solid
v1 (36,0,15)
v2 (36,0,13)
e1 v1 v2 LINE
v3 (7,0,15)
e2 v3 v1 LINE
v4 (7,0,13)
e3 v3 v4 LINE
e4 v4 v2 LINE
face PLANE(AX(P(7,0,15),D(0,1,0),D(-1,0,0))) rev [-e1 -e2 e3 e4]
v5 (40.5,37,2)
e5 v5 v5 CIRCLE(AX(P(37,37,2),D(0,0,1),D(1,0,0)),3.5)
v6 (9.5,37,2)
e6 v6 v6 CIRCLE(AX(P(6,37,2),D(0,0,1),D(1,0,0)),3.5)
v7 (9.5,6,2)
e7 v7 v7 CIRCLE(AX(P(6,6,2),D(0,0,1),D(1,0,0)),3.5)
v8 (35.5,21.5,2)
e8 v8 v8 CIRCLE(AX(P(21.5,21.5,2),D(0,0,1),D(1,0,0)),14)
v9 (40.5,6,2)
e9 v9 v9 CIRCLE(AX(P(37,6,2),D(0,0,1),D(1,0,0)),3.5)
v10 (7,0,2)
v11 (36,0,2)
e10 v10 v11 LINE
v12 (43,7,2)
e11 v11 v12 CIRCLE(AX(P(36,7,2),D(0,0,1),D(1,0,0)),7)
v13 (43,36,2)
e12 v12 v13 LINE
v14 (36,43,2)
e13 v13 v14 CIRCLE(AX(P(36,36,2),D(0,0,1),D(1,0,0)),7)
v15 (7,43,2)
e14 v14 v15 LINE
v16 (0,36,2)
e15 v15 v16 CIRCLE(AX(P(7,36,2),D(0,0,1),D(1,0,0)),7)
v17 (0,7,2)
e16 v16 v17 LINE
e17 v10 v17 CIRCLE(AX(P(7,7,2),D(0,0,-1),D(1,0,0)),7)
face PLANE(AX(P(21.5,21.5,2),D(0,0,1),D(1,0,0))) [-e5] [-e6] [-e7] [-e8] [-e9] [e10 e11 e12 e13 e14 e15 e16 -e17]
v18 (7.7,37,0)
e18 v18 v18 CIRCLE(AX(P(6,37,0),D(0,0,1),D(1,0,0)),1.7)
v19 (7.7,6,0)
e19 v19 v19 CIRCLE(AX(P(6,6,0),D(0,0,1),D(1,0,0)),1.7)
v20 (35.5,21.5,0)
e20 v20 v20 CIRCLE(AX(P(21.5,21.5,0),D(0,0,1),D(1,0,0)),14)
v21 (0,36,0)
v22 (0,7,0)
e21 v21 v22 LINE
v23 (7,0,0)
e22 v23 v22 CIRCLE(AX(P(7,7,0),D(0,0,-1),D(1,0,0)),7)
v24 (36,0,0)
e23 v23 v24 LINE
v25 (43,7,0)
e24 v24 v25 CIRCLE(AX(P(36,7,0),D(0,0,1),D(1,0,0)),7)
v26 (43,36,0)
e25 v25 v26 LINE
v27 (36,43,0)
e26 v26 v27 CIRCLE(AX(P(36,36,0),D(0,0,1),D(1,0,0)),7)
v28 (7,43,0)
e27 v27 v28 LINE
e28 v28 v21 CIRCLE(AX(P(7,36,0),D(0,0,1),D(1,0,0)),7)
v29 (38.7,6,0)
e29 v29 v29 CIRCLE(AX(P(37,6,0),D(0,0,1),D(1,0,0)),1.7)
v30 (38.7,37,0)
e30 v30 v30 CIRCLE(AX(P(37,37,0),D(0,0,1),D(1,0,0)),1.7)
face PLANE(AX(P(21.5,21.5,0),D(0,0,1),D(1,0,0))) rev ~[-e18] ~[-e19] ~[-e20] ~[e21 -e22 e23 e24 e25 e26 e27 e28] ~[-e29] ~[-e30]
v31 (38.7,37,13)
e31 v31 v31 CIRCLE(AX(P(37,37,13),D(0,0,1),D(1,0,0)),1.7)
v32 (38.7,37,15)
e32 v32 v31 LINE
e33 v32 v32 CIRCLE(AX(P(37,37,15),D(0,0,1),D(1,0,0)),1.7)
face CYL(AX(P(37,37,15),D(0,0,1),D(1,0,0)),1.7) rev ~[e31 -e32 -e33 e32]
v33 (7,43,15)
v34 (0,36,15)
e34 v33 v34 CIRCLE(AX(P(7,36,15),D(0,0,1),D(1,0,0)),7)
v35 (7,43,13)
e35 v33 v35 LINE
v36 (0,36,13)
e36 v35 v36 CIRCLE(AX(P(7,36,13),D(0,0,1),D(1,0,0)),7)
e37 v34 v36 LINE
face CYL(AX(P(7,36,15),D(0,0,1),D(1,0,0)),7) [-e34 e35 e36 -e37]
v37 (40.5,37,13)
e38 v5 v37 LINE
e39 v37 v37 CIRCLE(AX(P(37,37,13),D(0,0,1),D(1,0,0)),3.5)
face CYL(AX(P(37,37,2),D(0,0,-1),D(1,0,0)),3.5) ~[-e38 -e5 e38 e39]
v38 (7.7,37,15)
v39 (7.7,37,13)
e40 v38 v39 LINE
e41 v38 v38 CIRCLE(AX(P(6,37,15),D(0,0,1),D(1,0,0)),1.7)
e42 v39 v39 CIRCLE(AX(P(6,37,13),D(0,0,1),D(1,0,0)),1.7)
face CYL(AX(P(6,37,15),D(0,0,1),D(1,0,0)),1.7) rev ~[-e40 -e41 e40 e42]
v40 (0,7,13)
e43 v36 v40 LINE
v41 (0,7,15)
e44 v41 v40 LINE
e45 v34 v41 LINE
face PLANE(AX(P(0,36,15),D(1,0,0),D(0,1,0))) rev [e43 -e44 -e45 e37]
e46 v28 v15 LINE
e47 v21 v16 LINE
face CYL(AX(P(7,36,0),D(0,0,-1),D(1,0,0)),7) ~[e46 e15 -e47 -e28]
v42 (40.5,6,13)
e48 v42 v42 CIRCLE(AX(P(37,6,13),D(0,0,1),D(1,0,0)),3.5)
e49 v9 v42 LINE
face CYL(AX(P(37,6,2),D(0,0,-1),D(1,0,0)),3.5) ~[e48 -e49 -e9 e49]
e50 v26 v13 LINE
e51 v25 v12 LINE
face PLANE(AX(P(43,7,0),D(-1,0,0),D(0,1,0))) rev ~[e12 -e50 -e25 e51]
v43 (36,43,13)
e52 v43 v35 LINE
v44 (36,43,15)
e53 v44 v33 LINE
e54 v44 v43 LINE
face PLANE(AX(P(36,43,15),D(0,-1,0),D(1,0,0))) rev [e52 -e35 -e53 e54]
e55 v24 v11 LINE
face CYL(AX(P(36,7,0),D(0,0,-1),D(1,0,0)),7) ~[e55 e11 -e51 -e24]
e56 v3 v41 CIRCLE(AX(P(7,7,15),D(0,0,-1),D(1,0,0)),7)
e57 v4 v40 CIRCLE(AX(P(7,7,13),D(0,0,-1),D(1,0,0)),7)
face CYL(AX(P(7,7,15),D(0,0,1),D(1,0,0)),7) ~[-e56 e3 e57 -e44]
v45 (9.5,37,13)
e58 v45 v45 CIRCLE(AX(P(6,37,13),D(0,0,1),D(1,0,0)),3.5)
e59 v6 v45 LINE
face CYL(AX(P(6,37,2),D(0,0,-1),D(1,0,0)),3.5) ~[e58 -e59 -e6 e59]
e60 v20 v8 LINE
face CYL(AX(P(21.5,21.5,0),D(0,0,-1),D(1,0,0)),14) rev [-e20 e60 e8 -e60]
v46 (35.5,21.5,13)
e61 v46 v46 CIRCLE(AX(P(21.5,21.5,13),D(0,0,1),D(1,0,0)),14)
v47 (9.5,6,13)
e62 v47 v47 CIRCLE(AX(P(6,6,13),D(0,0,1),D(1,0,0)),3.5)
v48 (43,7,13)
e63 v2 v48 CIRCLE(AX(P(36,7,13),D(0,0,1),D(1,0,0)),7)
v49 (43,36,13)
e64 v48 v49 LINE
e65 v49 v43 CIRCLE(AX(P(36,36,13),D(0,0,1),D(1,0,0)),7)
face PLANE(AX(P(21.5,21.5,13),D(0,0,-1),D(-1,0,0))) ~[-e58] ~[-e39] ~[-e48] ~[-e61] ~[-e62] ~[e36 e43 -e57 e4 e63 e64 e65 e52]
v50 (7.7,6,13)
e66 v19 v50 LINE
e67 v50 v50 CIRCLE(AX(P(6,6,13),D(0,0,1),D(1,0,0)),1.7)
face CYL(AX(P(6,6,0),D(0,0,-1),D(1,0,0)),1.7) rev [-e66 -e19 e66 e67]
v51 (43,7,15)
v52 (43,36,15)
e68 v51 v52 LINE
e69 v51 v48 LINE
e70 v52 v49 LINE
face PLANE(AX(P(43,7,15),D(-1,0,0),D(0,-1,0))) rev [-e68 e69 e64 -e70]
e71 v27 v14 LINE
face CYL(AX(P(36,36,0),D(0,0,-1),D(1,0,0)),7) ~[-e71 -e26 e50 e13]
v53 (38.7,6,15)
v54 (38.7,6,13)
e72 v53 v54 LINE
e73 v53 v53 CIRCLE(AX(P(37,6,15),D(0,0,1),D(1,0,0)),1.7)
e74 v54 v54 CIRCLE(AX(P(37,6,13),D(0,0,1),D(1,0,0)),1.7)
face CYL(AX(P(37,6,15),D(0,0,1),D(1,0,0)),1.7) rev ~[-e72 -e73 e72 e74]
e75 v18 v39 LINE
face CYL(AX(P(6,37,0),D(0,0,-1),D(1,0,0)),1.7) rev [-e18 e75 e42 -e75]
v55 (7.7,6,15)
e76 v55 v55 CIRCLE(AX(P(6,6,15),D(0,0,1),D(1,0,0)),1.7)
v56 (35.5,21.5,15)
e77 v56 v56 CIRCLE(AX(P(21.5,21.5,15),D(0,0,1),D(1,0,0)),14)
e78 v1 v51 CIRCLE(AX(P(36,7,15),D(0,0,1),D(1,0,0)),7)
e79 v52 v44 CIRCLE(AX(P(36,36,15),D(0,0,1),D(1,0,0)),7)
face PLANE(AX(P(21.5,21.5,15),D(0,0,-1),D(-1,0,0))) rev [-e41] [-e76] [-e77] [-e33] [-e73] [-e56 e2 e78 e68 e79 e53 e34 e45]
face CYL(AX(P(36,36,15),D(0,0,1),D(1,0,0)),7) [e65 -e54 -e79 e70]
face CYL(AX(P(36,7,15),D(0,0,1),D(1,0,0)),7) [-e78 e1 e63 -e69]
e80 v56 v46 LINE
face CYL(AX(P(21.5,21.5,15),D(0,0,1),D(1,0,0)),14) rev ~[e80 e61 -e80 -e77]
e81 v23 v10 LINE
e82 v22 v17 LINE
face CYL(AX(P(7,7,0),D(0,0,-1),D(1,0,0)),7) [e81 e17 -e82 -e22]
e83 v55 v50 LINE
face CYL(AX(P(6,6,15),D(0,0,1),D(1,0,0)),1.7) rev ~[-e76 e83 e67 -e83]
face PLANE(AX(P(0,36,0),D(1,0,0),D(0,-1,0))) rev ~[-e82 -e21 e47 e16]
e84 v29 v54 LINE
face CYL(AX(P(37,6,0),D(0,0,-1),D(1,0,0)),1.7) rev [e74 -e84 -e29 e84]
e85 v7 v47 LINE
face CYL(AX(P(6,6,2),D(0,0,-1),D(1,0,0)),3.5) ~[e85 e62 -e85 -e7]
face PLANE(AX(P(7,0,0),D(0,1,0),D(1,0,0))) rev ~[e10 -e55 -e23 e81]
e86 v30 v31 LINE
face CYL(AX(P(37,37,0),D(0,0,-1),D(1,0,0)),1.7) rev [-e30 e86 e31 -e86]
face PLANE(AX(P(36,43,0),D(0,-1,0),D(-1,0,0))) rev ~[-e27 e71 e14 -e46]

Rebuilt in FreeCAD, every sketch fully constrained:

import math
import FreeCAD as App
import Part
import Sketcher
from FreeCAD import Vector
Q = App.Units.Quantity

doc = App.newDocument("Part")
body = doc.addObject("PartDesign::Body", "Body")

# Sketch on XY plane
sketch1 = body.newObject("Sketcher::SketchObject", "Sketch")
sketch1.AttachmentSupport = (doc.getObject("XY_Plane"), [""])
sketch1.MapMode = "FlatFace"
sketch1.addGeometry([
    Part.ArcOfCircle(Part.Circle(Vector(7, 7, 0), Vector(0, 0, 1), 7), math.radians(180), math.radians(270)),  # 0
    Part.LineSegment(Vector(7, 0, 0), Vector(36, 0, 0)),  # 1
    Part.ArcOfCircle(Part.Circle(Vector(36, 7, 0), Vector(0, 0, 1), 7), math.radians(-90), math.radians(0)),  # 2
    Part.LineSegment(Vector(43, 7, 0), Vector(43, 36, 0)),  # 3
    Part.ArcOfCircle(Part.Circle(Vector(36, 36, 0), Vector(0, 0, 1), 7), math.radians(0), math.radians(90)),  # 4
    Part.LineSegment(Vector(36, 43, 0), Vector(7, 43, 0)),  # 5
    Part.ArcOfCircle(Part.Circle(Vector(7, 36, 0), Vector(0, 0, 1), 7), math.radians(90), math.radians(180)),  # 6
    Part.LineSegment(Vector(0, 36, 0), Vector(0, 7, 0)),  # 7
    Part.Circle(Vector(6, 6, 0), Vector(0, 0, 1), 1.7),  # 8
    Part.Circle(Vector(37, 6, 0), Vector(0, 0, 1), 1.7),  # 9
    Part.Circle(Vector(6, 37, 0), Vector(0, 0, 1), 1.7),  # 10
    Part.Circle(Vector(21.5, 21.5, 0), Vector(0, 0, 1), 14),  # 11
    Part.Circle(Vector(37, 37, 0), Vector(0, 0, 1), 1.7),  # 12
], False)
sketch1.addConstraint([
    Sketcher.Constraint("Tangent", 0, 2, 1, 1),
    Sketcher.Constraint("Tangent", 1, 2, 2, 1),
    Sketcher.Constraint("Tangent", 2, 2, 3, 1),
    Sketcher.Constraint("Tangent", 3, 2, 4, 1),
    Sketcher.Constraint("Tangent", 4, 2, 5, 1),
    Sketcher.Constraint("Tangent", 5, 2, 6, 1),
    Sketcher.Constraint("Tangent", 6, 2, 7, 1),
    Sketcher.Constraint("Tangent", 7, 2, 0, 1),
    Sketcher.Constraint("Horizontal", 1),
    Sketcher.Constraint("Vertical", 3),
    Sketcher.Constraint("Horizontal", 5),
    Sketcher.Constraint("Vertical", 7),
    Sketcher.Constraint("Equal", 0, 2),
    Sketcher.Constraint("Equal", 2, 4),
    Sketcher.Constraint("Equal", 4, 6),
    Sketcher.Constraint("Equal", 8, 9),
    Sketcher.Constraint("Equal", 9, 10),
    Sketcher.Constraint("Equal", 10, 12),
    Sketcher.Constraint("PointOnObject", 0, 2, -1),
    Sketcher.Constraint("PointOnObject", 6, 2, -2),
    Sketcher.Constraint("Horizontal", 8, 3, 9, 3),
    Sketcher.Constraint("Horizontal", 10, 3, 12, 3),
    Sketcher.Constraint("Vertical", 8, 3, 10, 3),
    Sketcher.Constraint("Vertical", 9, 3, 12, 3),
    Sketcher.Constraint("Equal", 5, 3),
    Sketcher.Constraint("Diameter", 11, Q("28 mm")),
    Sketcher.Constraint("Radius", 0, Q("7 mm")),
    Sketcher.Constraint("Diameter", 8, Q("3.4 mm")),
    Sketcher.Constraint("DistanceX", 1, 1, 1, 2, Q("29 mm")),
    Sketcher.Constraint("DistanceX", -1, 1, 8, 3, Q("6 mm")),
    Sketcher.Constraint("DistanceY", -1, 1, 8, 3, Q("6 mm")),
    Sketcher.Constraint("DistanceX", -1, 1, 9, 3, Q("37 mm")),
    Sketcher.Constraint("DistanceY", -1, 1, 10, 3, Q("37 mm")),
    Sketcher.Constraint("DistanceX", -1, 1, 11, 3, Q("21.5 mm")),
    Sketcher.Constraint("DistanceY", -1, 1, 11, 3, Q("21.5 mm")),
])
pad1 = body.newObject("PartDesign::Pad", "Pad")
pad1.Profile = sketch1
pad1.Length = 2

# Sketch on XY plane
sketch2 = body.newObject("Sketcher::SketchObject", "Sketch001")
sketch2.AttachmentSupport = (doc.getObject("XY_Plane"), [""])
sketch2.MapMode = "FlatFace"
sketch2.AttachmentOffset = App.Placement(Vector(0, 0, 2), App.Rotation())
sketch2.addGeometry([
    Part.Circle(Vector(6, 6, 0), Vector(0, 0, 1), 3.5),  # 0
    Part.Circle(Vector(6, 6, 0), Vector(0, 0, 1), 1.7),  # 1
    Part.Circle(Vector(6, 37, 0), Vector(0, 0, 1), 3.5),  # 2
    Part.Circle(Vector(6, 37, 0), Vector(0, 0, 1), 1.7),  # 3
    Part.Circle(Vector(37, 37, 0), Vector(0, 0, 1), 3.5),  # 4
    Part.Circle(Vector(37, 37, 0), Vector(0, 0, 1), 1.7),  # 5
    Part.Circle(Vector(37, 6, 0), Vector(0, 0, 1), 3.5),  # 6
    Part.Circle(Vector(37, 6, 0), Vector(0, 0, 1), 1.7),  # 7
], False)
sketch2.addConstraint([
    Sketcher.Constraint("Coincident", 1, 3, 0, 3),
    Sketcher.Constraint("Coincident", 3, 3, 2, 3),
    Sketcher.Constraint("Coincident", 5, 3, 4, 3),
    Sketcher.Constraint("Coincident", 7, 3, 6, 3),
    Sketcher.Constraint("Equal", 0, 2),
    Sketcher.Constraint("Equal", 1, 3),
    Sketcher.Constraint("Equal", 2, 4),
    Sketcher.Constraint("Equal", 3, 5),
    Sketcher.Constraint("Equal", 4, 6),
    Sketcher.Constraint("Equal", 5, 7),
    Sketcher.Constraint("Horizontal", 3, 3, 4, 3),
    Sketcher.Constraint("Horizontal", 1, 3, 6, 3),
    Sketcher.Constraint("Vertical", 1, 3, 2, 3),
    Sketcher.Constraint("Vertical", 5, 3, 6, 3),
    Sketcher.Constraint("Diameter", 0, Q("7 mm")),
    Sketcher.Constraint("Diameter", 1, Q("3.4 mm")),
    Sketcher.Constraint("DistanceX", -1, 1, 0, 3, Q("6 mm")),
    Sketcher.Constraint("DistanceY", -1, 1, 0, 3, Q("6 mm")),
    Sketcher.Constraint("DistanceY", -1, 1, 2, 3, Q("37 mm")),
    Sketcher.Constraint("DistanceX", -1, 1, 4, 3, Q("37 mm")),
])
pad2 = body.newObject("PartDesign::Pad", "Pad001")
pad2.Profile = sketch2
pad2.Length = 11
doc.recompute()

datumplane = body.newObject("PartDesign::Plane", "DatumPlane")
datumplane.AttachmentSupport = (doc.getObject("XY_Plane"), [""])
datumplane.MapMode = "FlatFace"
datumplane.AttachmentOffset = App.Placement(Vector(0, 0, 7.5), App.Rotation())
mirrored = body.newObject("PartDesign::Mirrored", "Mirrored")
mirrored.Originals = [pad1]
mirrored.MirrorPlane = (datumplane, [""])
body.Tip = mirrored

doc.recompute()
